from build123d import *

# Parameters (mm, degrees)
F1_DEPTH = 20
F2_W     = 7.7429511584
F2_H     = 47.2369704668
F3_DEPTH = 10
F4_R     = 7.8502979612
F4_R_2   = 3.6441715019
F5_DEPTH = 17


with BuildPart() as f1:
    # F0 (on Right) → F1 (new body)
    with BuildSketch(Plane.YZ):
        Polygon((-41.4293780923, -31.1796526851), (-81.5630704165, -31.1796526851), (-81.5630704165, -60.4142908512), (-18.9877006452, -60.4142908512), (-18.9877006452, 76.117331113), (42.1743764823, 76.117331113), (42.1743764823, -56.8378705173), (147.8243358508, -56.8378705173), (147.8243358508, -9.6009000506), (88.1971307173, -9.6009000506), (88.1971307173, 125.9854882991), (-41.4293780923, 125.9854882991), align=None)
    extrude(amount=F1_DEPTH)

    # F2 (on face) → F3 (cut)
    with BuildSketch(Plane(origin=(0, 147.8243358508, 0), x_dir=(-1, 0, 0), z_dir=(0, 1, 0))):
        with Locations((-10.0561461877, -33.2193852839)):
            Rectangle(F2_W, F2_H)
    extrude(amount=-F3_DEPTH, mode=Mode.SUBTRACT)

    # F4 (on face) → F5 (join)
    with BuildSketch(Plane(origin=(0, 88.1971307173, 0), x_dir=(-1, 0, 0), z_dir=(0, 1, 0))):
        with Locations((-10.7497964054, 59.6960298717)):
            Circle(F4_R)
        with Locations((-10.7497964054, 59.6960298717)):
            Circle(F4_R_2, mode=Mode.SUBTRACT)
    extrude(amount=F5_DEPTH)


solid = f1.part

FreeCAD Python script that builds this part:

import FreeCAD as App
import Part
import Sketcher

V = App.Vector
Q = App.Units.Quantity


def add_polygon(sketch, points):
    """Adds a closed chain of lines whose ends are joined by coincident constraints."""
    first, n = sketch.GeometryCount, len(points)
    for a, b in zip(points, points[1:] + points[:1]):
        sketch.addGeometry(Part.LineSegment(App.Vector(*a, 0), App.Vector(*b, 0)), False)
    for i in range(n):
        sketch.addConstraint(Sketcher.Constraint("Coincident", first + i, 2, first + (i + 1) % n, 1))

doc = App.newDocument("Part")
params = doc.addObject("Spreadsheet::Sheet", "Params")
for row, (alias, value) in enumerate([
    ("pad1_length", "20 mm"),
    ("pocket1_length", "10 mm"),
    ("pad2_length", "17 mm"),
], start=1):
    params.set(f"A{row}", alias)
    params.set(f"B{row}", "=" + value)
    params.setAlias(f"B{row}", alias)

body = doc.addObject("PartDesign::Body", "Body")

sketch1 = body.newObject("Sketcher::SketchObject", "Sketch")
sketch1.AttachmentSupport = (doc.getObject("YZ_Plane"), [""])
sketch1.MapMode = "FlatFace"
add_polygon(sketch1, [(-41, -31), (-82, -31), (-82, -60), (-19, -60), (-19, 76), (42, 76), (42, -57), (148, -57), (148, -10), (88, -10), (88, 126), (-41, 126)])
sketch1.addConstraint([
    Sketcher.Constraint("Horizontal", 0),
    Sketcher.Constraint("Vertical", 1),
    Sketcher.Constraint("Horizontal", 2),
    Sketcher.Constraint("Vertical", 3),
    Sketcher.Constraint("Horizontal", 4),
    Sketcher.Constraint("Vertical", 5),
    Sketcher.Constraint("Horizontal", 6),
    Sketcher.Constraint("Vertical", 7),
    Sketcher.Constraint("Horizontal", 8),
    Sketcher.Constraint("Vertical", 9),
    Sketcher.Constraint("Horizontal", 10),
    Sketcher.Constraint("Vertical", 11),
    Sketcher.Constraint("DistanceY", 5, 2, 5, 1, Q("132.955202 mm")),
    Sketcher.Constraint("DistanceX", 2, 1, 2, 2, Q("62.57537 mm")),
    Sketcher.Constraint("DistanceX", 6, 1, 6, 2, Q("105.649959 mm")),
    Sketcher.Constraint("DistanceX", 10, 2, 10, 1, Q("129.626509 mm")),
    Sketcher.Constraint("DistanceY", 1, 2, 1, 1, Q("29.234638 mm")),
    Sketcher.Constraint("DistanceY", 3, 1, 3, 2, Q("136.531622 mm")),
    Sketcher.Constraint("DistanceY", 7, 1, 7, 2, Q("47.23697 mm")),
    Sketcher.Constraint("DistanceY", 9, 1, 9, 2, Q("135.586388 mm")),
    Sketcher.Constraint("DistanceX", 2, 2, -1, 1, Q("18.987701 mm")),
    Sketcher.Constraint("DistanceY", 7, 2, -1, 1, Q("9.6009 mm")),
    Sketcher.Constraint("DistanceX", 0, 2, 0, 1, Q("40.133692 mm")),
    Sketcher.Constraint("DistanceX", 4, 1, 4, 2, Q("61.162077 mm")),
])
pad1 = body.newObject("PartDesign::Pad", "Pad")
pad1.Profile = sketch1
pad1.setExpression("Length", "Params.pad1_length")

sketch2 = body.newObject("Sketcher::SketchObject", "Sketch001")
sketch2.AttachmentSupport = (doc.getObject("XZ_Plane"), [""])
sketch2.MapMode = "FlatFace"
sketch2.AttachmentOffset = App.Placement(V(0, 0, -147.824336), App.Rotation())
add_polygon(sketch2, [(14, -10), (14, -57), (6, -57), (6, -10)])
sketch2.addConstraint([
    Sketcher.Constraint("Vertical", 0),
    Sketcher.Constraint("Horizontal", 1),
    Sketcher.Constraint("Vertical", 2),
    Sketcher.Constraint("Horizontal", 3),
    Sketcher.Constraint("DistanceX", 1, 2, 1, 1, Q("7.742951 mm")),
    Sketcher.Constraint("DistanceY", 0, 2, 0, 1, Q("47.23697 mm")),
    Sketcher.Constraint("DistanceY", 2, 2, -1, 1, Q("9.6009 mm")),
    Sketcher.Constraint("DistanceX", -1, 1, 0, 2, Q("13.927622 mm")),
])
pocket1 = body.newObject("PartDesign::Pocket", "Pocket")
pocket1.Profile = sketch2
pocket1.setExpression("Length", "Params.pocket1_length")
pocket1.Reversed = True

sketch3 = body.newObject("Sketcher::SketchObject", "Sketch002")
sketch3.AttachmentSupport = (doc.getObject("XZ_Plane"), [""])
sketch3.MapMode = "FlatFace"
sketch3.AttachmentOffset = App.Placement(V(0, 0, -88.197131), App.Rotation())
sketch3.addGeometry([
    Part.Circle(V(10.7, 59.7, 0), V(0, 0, 1), 7.9),
    Part.Circle(V(10.7, 59.7, 0), V(0, 0, 1), 3.6),
], False)
sketch3.addConstraint([
    Sketcher.Constraint("Coincident", 1, 3, 0, 3),
    Sketcher.Constraint("Diameter", 0, Q("15.700596 mm")),
    Sketcher.Constraint("Diameter", 1, Q("7.288343 mm")),
    Sketcher.Constraint("DistanceY", -1, 1, 0, 3, Q("59.69603 mm")),
    Sketcher.Constraint("DistanceX", -1, 1, 0, 3, Q("10.749796 mm")),
])
pad2 = body.newObject("PartDesign::Pad", "Pad001")
pad2.Profile = sketch3
pad2.setExpression("Length", "Params.pad2_length")
pad2.Reversed = True

doc.recompute()
